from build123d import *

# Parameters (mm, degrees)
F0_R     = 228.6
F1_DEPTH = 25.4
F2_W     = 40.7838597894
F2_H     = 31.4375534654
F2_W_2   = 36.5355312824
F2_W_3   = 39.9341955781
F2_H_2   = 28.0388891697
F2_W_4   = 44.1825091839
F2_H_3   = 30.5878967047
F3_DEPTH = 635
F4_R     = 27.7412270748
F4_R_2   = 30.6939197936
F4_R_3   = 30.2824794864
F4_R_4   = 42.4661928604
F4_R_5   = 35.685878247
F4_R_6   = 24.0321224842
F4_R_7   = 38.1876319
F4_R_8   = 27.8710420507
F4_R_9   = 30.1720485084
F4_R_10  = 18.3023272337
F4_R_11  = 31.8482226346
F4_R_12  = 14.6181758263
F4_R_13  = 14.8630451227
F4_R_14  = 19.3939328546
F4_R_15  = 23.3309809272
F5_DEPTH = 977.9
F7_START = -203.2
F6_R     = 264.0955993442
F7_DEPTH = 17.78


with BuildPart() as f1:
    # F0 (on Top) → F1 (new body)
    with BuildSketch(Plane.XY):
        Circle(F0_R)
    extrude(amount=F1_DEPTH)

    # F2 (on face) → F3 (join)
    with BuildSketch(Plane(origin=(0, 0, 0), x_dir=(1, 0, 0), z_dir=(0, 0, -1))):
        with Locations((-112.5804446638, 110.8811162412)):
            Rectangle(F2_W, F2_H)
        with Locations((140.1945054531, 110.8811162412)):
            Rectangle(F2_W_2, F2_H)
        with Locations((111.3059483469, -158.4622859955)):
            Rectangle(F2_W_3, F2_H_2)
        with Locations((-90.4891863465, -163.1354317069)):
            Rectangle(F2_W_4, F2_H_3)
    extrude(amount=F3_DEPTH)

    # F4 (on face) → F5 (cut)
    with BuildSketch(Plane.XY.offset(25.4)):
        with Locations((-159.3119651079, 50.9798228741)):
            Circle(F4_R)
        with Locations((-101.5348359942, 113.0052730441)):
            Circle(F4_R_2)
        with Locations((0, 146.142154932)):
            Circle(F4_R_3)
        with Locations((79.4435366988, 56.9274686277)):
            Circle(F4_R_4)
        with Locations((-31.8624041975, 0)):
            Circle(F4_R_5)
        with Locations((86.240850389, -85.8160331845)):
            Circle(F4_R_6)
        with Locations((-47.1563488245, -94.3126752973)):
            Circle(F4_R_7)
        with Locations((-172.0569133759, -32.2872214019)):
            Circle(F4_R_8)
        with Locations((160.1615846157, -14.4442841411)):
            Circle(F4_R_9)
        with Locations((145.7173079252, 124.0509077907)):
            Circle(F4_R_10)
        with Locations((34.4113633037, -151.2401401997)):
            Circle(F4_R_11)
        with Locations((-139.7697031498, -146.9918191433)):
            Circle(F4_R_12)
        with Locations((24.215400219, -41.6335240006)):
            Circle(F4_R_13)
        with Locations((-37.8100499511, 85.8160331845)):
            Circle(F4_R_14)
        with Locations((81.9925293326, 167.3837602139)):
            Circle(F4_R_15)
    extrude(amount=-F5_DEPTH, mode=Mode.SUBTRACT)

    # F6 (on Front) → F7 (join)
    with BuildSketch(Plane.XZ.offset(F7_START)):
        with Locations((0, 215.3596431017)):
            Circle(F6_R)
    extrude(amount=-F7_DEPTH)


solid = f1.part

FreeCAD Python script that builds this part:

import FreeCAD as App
import Part
import Sketcher
Q = App.Units.Quantity

doc = App.newDocument("Part")
params = doc.addObject("Spreadsheet::Sheet", "Params")
for row, (alias, value) in enumerate([
    ("sketch1_diameter", "18 in"),
    ("pad1_length", "1 in"),
    ("pad2_length", "25 in"),
    ("pocket1_length", "38.5 in"),
    ("pad3_length", "0.7 in"),
], start=1):
    params.set(f"A{row}", alias)
    params.set(f"B{row}", "=" + value)
    params.setAlias(f"B{row}", alias)

body = doc.addObject("PartDesign::Body", "Body")

sketch1 = body.newObject("Sketcher::SketchObject", "Sketch")
sketch1.AttachmentSupport = (doc.getObject("XY_Plane"), [""])
sketch1.MapMode = "FlatFace"
sketch1.addGeometry(Part.Circle(App.Vector(0, 0, 0), App.Vector(0, 0, 1), 229), False)
sketch1.addConstraint([
    Sketcher.Constraint("Coincident", 0, 3, -1, 1),
    Sketcher.Constraint("Diameter", 0, Q("18 in")),
])
sketch1.setExpression("Constraints[1]", "Params.sketch1_diameter")
pad1 = body.newObject("PartDesign::Pad", "Pad")
pad1.Profile = sketch1
pad1.setExpression("Length", "Params.pad1_length")

sketch2 = body.newObject("Sketcher::SketchObject", "Sketch001")
sketch2.AttachmentSupport = (doc.getObject("XY_Plane"), [""])
sketch2.MapMode = "FlatFace"
sketch2.addGeometry([
    Part.LineSegment(App.Vector(-133, -127, 0), App.Vector(-133, -95, 0)),
    Part.LineSegment(App.Vector(-133, -95, 0), App.Vector(-92, -95, 0)),
    Part.LineSegment(App.Vector(-92, -95, 0), App.Vector(-92, -127, 0)),
    Part.LineSegment(App.Vector(-92, -127, 0), App.Vector(-133, -127, 0)),
    Part.LineSegment(App.Vector(122, -127, 0), App.Vector(122, -95, 0)),
    Part.LineSegment(App.Vector(122, -95, 0), App.Vector(158, -95, 0)),
    Part.LineSegment(App.Vector(158, -95, 0), App.Vector(158, -127, 0)),
    Part.LineSegment(App.Vector(158, -127, 0), App.Vector(122, -127, 0)),
    Part.LineSegment(App.Vector(91, 144, 0), App.Vector(91, 172, 0)),
    Part.LineSegment(App.Vector(91, 172, 0), App.Vector(131, 172, 0)),
    Part.LineSegment(App.Vector(131, 172, 0), App.Vector(131, 144, 0)),
    Part.LineSegment(App.Vector(131, 144, 0), App.Vector(91, 144, 0)),
    Part.LineSegment(App.Vector(-113, 148, 0), App.Vector(-113, 178, 0)),
    Part.LineSegment(App.Vector(-113, 178, 0), App.Vector(-68, 178, 0)),
    Part.LineSegment(App.Vector(-68, 178, 0), App.Vector(-68, 148, 0)),
    Part.LineSegment(App.Vector(-68, 148, 0), App.Vector(-113, 148, 0)),
], False)
sketch2.addConstraint([
    Sketcher.Constraint("Coincident", 0, 2, 1, 1),
    Sketcher.Constraint("Coincident", 1, 2, 2, 1),
    Sketcher.Constraint("Coincident", 2, 2, 3, 1),
    Sketcher.Constraint("Coincident", 3, 2, 0, 1),
    Sketcher.Constraint("Coincident", 4, 2, 5, 1),
    Sketcher.Constraint("Coincident", 5, 2, 6, 1),
    Sketcher.Constraint("Coincident", 6, 2, 7, 1),
    Sketcher.Constraint("Coincident", 7, 2, 4, 1),
    Sketcher.Constraint("Coincident", 8, 2, 9, 1),
    Sketcher.Constraint("Coincident", 9, 2, 10, 1),
    Sketcher.Constraint("Coincident", 10, 2, 11, 1),
    Sketcher.Constraint("Coincident", 11, 2, 8, 1),
    Sketcher.Constraint("Coincident", 12, 2, 13, 1),
    Sketcher.Constraint("Coincident", 13, 2, 14, 1),
    Sketcher.Constraint("Coincident", 14, 2, 15, 1),
    Sketcher.Constraint("Coincident", 15, 2, 12, 1),
    Sketcher.Constraint("Vertical", 0),
    Sketcher.Constraint("Horizontal", 1),
    Sketcher.Constraint("Vertical", 2),
    Sketcher.Constraint("Horizontal", 3),
    Sketcher.Constraint("Vertical", 4),
    Sketcher.Constraint("Horizontal", 5),
    Sketcher.Constraint("Vertical", 6),
    Sketcher.Constraint("Horizontal", 7),
    Sketcher.Constraint("Vertical", 8),
    Sketcher.Constraint("Horizontal", 9),
    Sketcher.Constraint("Vertical", 10),
    Sketcher.Constraint("Horizontal", 11),
    Sketcher.Constraint("Vertical", 12),
    Sketcher.Constraint("Horizontal", 13),
    Sketcher.Constraint("Vertical", 14),
    Sketcher.Constraint("Horizontal", 15),
    Sketcher.Constraint("Horizontal", 1, 2, 4, 2),
    Sketcher.Constraint("Horizontal", 3, 2, 6, 2),
    Sketcher.Constraint("DistanceX", 1, 1, 1, 2, Q("40.78386 mm")),
    Sketcher.Constraint("DistanceX", 5, 1, 5, 2, Q("36.535531 mm")),
    Sketcher.Constraint("DistanceX", 13, 1, 13, 2, Q("44.182509 mm")),
    Sketcher.Constraint("DistanceY", 8, 1, 8, 2, Q("28.038889 mm")),
    Sketcher.Constraint("DistanceX", 9, 1, 9, 2, Q("39.934196 mm")),
    Sketcher.Constraint("DistanceY", 0, 1, 0, 2, Q("31.437553 mm")),
    Sketcher.Constraint("DistanceY", 12, 1, 12, 2, Q("30.587897 mm")),
    Sketcher.Constraint("DistanceY", 0, 2, -1, 1, Q("95.16234 mm")),
    Sketcher.Constraint("DistanceX", -1, 1, 4, 2, Q("121.92674 mm")),
    Sketcher.Constraint("DistanceX", -1, 1, 8, 2, Q("91.338851 mm")),
    Sketcher.Constraint("DistanceY", -1, 1, 8, 2, Q("172.481731 mm")),
    Sketcher.Constraint("DistanceX", 12, 2, -1, 1, Q("112.580441 mm")),
    Sketcher.Constraint("DistanceY", -1, 1, 12, 2, Q("178.42938 mm")),
    Sketcher.Constraint("DistanceX", 0, 2, -1, 1, Q("132.972375 mm")),
])
pad2 = body.newObject("PartDesign::Pad", "Pad001")
pad2.Profile = sketch2
pad2.setExpression("Length", "Params.pad2_length")
pad2.Reversed = True

sketch3 = body.newObject("Sketcher::SketchObject", "Sketch002")
sketch3.AttachmentSupport = (doc.getObject("XY_Plane"), [""])
sketch3.MapMode = "FlatFace"
sketch3.AttachmentOffset = App.Placement(App.Vector(0, 0, 1 * 25.4), App.Rotation())
sketch3.addGeometry([
    Part.Circle(App.Vector(-159, 51, 0), App.Vector(0, 0, 1), 28),
    Part.Circle(App.Vector(-102, 113, 0), App.Vector(0, 0, 1), 31),
    Part.Circle(App.Vector(0, 146, 0), App.Vector(0, 0, 1), 30),
    Part.Circle(App.Vector(79, 57, 0), App.Vector(0, 0, 1), 42),
    Part.Circle(App.Vector(-32, 0, 0), App.Vector(0, 0, 1), 36),
    Part.Circle(App.Vector(86, -86, 0), App.Vector(0, 0, 1), 24),
    Part.Circle(App.Vector(-47, -94, 0), App.Vector(0, 0, 1), 38),
    Part.Circle(App.Vector(-172, -32, 0), App.Vector(0, 0, 1), 28),
    Part.Circle(App.Vector(160, -14, 0), App.Vector(0, 0, 1), 30),
    Part.Circle(App.Vector(146, 124, 0), App.Vector(0, 0, 1), 18),
    Part.Circle(App.Vector(34, -151, 0), App.Vector(0, 0, 1), 32),
    Part.Circle(App.Vector(-140, -147, 0), App.Vector(0, 0, 1), 15),
    Part.Circle(App.Vector(24, -42, 0), App.Vector(0, 0, 1), 15),
    Part.Circle(App.Vector(-38, 86, 0), App.Vector(0, 0, 1), 19),
    Part.Circle(App.Vector(82, 167, 0), App.Vector(0, 0, 1), 23),
], False)
sketch3.addConstraint([
    Sketcher.Constraint("PointOnObject", 2, 3, -2),
    Sketcher.Constraint("PointOnObject", 4, 3, -1),
    Sketcher.Constraint("Diameter", 6, Q("3.0069001 in")),
    Sketcher.Constraint("Diameter", 1, Q("61.38784 mm")),
    Sketcher.Constraint("Diameter", 2, Q("60.564959 mm")),
    Sketcher.Constraint("Diameter", 11, Q("29.236352 mm")),
    Sketcher.Constraint("Diameter", 12, Q("29.72609 mm")),
    Sketcher.Constraint("Diameter", 14, Q("46.661962 mm")),
    Sketcher.Constraint("Diameter", 0, Q("55.482454 mm")),
    Sketcher.Constraint("Diameter", 3, Q("84.932386 mm")),
    Sketcher.Constraint("Diameter", 4, Q("71.371756 mm")),
    Sketcher.Constraint("Diameter", 5, Q("48.064245 mm")),
    Sketcher.Constraint("Diameter", 7, Q("55.742084 mm")),
    Sketcher.Constraint("Diameter", 8, Q("60.344097 mm")),
    Sketcher.Constraint("Diameter", 9, Q("36.604654 mm")),
    Sketcher.Constraint("Diameter", 10, Q("63.696445 mm")),
    Sketcher.Constraint("Diameter", 13, Q("38.787866 mm")),
    Sketcher.Constraint("DistanceX", -1, 1, 12, 3, Q("24.2154 mm")),
    Sketcher.Constraint("DistanceX", 0, 3, 3, 3, Q("238.755502 mm")),
    Sketcher.Constraint("DistanceY", 5, 3, 3, 3, Q("142.743502 mm")),
    Sketcher.Constraint("DistanceX", 6, 3, 5, 3, Q("133.397199 mm")),
    Sketcher.Constraint("DistanceY", 6, 3, 0, 3, Q("145.292498 mm")),
    Sketcher.Constraint("DistanceX", 11, 3, 4, 3, Q("107.907299 mm")),
    Sketcher.Constraint("DistanceY", -1, 1, 3, 3, Q("56.927469 mm")),
    Sketcher.Constraint("DistanceX", -1, 1, 5, 3, Q("86.24085 mm")),
    Sketcher.Constraint("DistanceY", 7, 3, -1, 1, Q("32.287221 mm")),
    Sketcher.Constraint("DistanceY", 10, 3, -1, 1, Q("151.24014 mm")),
    Sketcher.Constraint("DistanceY", 11, 3, -1, 1, Q("146.991819 mm")),
    Sketcher.Constraint("DistanceX", 13, 3, -1, 1, Q("37.81005 mm")),
    Sketcher.Constraint("DistanceX", -1, 1, 14, 3, Q("81.992529 mm")),
    Sketcher.Constraint("DistanceY", -1, 1, 14, 3, Q("167.38376 mm")),
    Sketcher.Constraint("DistanceX", 0, 3, 1, 3, Q("57.777129 mm")),
    Sketcher.Constraint("DistanceY", 0, 3, 1, 3, Q("62.02545 mm")),
    Sketcher.Constraint("DistanceY", 1, 3, 2, 3, Q("33.136882 mm")),
    Sketcher.Constraint("DistanceX", 4, 3, 3, 3, Q("111.305941 mm")),
    Sketcher.Constraint("DistanceY", 5, 3, 2, 3, Q("231.958188 mm")),
    Sketcher.Constraint("DistanceX", 7, 3, 0, 3, Q("12.744948 mm")),
    Sketcher.Constraint("DistanceY", 5, 3, 8, 3, Q("71.371749 mm")),
    Sketcher.Constraint("DistanceX", 4, 3, 8, 3, Q("192.023989 mm")),
    Sketcher.Constraint("DistanceX", 3, 3, 9, 3, Q("66.273771 mm")),
    Sketcher.Constraint("DistanceY", 3, 3, 9, 3, Q("67.123439 mm")),
    Sketcher.Constraint("DistanceX", 10, 3, 8, 3, Q("125.750221 mm")),
    Sketcher.Constraint("DistanceY", 5, 3, 12, 3, Q("44.182509 mm")),
    Sketcher.Constraint("DistanceY", 13, 3, 1, 3, Q("27.18924 mm")),
    Sketcher.Constraint("DistanceX", 14, 3, 9, 3, Q("63.724779 mm")),
])
pocket1 = body.newObject("PartDesign::Pocket", "Pocket")
pocket1.Profile = sketch3
pocket1.setExpression("Length", "Params.pocket1_length")

sketch4 = body.newObject("Sketcher::SketchObject", "Sketch003")
sketch4.AttachmentSupport = (doc.getObject("XZ_Plane"), [""])
sketch4.MapMode = "FlatFace"
sketch4.AttachmentOffset = App.Placement(App.Vector(0, 0, -8 * 25.4), App.Rotation())
sketch4.addGeometry(Part.Circle(App.Vector(0, 215, 0), App.Vector(0, 0, 1), 264), False)
sketch4.addConstraint([
    Sketcher.Constraint("PointOnObject", 0, 3, -2),
    Sketcher.Constraint("Diameter", 0, Q("528.191199 mm")),
    Sketcher.Constraint("DistanceY", -1, 1, 0, 3, Q("215.359643 mm")),
])
pad3 = body.newObject("PartDesign::Pad", "Pad002")
pad3.Profile = sketch4
pad3.setExpression("Length", "Params.pad3_length")
pad3.Reversed = True

doc.recompute()
